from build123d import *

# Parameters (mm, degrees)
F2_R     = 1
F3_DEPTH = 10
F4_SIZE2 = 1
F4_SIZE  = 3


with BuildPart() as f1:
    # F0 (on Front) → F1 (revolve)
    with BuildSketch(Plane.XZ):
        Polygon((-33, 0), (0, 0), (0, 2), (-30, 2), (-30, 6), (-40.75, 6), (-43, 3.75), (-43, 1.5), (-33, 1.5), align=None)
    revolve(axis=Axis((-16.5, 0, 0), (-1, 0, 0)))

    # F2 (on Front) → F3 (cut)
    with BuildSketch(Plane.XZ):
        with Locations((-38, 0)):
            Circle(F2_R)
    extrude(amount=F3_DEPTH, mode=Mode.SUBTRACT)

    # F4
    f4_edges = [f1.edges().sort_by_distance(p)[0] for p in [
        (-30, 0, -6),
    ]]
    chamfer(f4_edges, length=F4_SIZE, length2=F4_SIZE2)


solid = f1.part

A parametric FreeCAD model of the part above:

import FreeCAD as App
import Part
import Sketcher
Q = App.Units.Quantity


def edges_at(feature, points):
    """Names of the edges that pass closest to the given points."""
    edges = feature.Shape.Edges
    near = lambda p: min(range(len(edges)), key=lambda i: edges[i].distToShape(Part.Vertex(*p))[0])
    return sorted({f"Edge{near(p) + 1}" for p in points})


def add_polygon(sketch, points):
    """Adds a closed chain of lines whose ends are joined by coincident constraints."""
    first, n = sketch.GeometryCount, len(points)
    for a, b in zip(points, points[1:] + points[:1]):
        sketch.addGeometry(Part.LineSegment(App.Vector(*a, 0), App.Vector(*b, 0)), False)
    for i in range(n):
        sketch.addConstraint(Sketcher.Constraint("Coincident", first + i, 2, first + (i + 1) % n, 1))

doc = App.newDocument("Part")
params = doc.addObject("Spreadsheet::Sheet", "Params")
for row, (alias, value) in enumerate([
    ("sketch1_width", "33 mm"),
    ("sketch1_width2", "30 mm"),
    ("sketch1_width3", "10 mm"),
    ("sketch1_height", "2 mm"),
    ("sketch1_height2", "4 mm"),
    ("revolution_angle", "360 deg"),
    ("sketch2_diameter", "2 mm"),
    ("pocket1_length", "10 mm"),
    ("chamfer_size", "3 mm"),
    ("chamfer_size2", "1 mm"),
], start=1):
    params.set(f"A{row}", alias)
    params.set(f"B{row}", "=" + value)
    params.setAlias(f"B{row}", alias)

body = doc.addObject("PartDesign::Body", "Body")

sketch1 = body.newObject("Sketcher::SketchObject", "Sketch")
sketch1.AttachmentSupport = (doc.getObject("XZ_Plane"), [""])
sketch1.MapMode = "FlatFace"
add_polygon(sketch1, [(-33, 0), (0, 0), (0, 2), (-30, 2), (-30, 6), (-40.8, 6), (-43, 3.8), (-43, 1.5), (-33, 1.5)])
sketch1.addConstraint(Sketcher.Constraint("Horizontal", 0))
sketch1.addConstraint(Sketcher.Constraint("Vertical", 1))
sketch1.addConstraint(Sketcher.Constraint("Horizontal", 2))
sketch1.addConstraint(Sketcher.Constraint("Vertical", 3))
sketch1.addConstraint(Sketcher.Constraint("Horizontal", 4))
sketch1.addConstraint(Sketcher.Constraint("Vertical", 6))
sketch1.addConstraint(Sketcher.Constraint("Horizontal", 7))
sketch1.addConstraint(Sketcher.Constraint("Vertical", 8))
sketch1.addConstraint(Sketcher.Constraint("Coincident", 0, 2, -1, 1))
sketch1.addConstraint(Sketcher.Constraint("DistanceX", 0, 1, 0, 2, 33.0))
sketch1.addConstraint(Sketcher.Constraint("DistanceX", 2, 2, 2, 1, 30.0))
sketch1.addConstraint(Sketcher.Constraint("DistanceX", 7, 1, 7, 2, 10.0))
sketch1.addConstraint(Sketcher.Constraint("DistanceY", 1, 1, 1, 2, 2.0))
sketch1.addConstraint(Sketcher.Constraint("DistanceY", 3, 1, 3, 2, 4.0))
sketch1.addConstraint(Sketcher.Constraint("Angle", 5, Q("-135 deg")))
sketch1.addConstraint(Sketcher.Constraint("DistanceY", 8, 2, 8, 1, 1.5))
sketch1.addConstraint(Sketcher.Constraint("DistanceX", 4, 2, 4, 1, 10.75))
sketch1.setExpression("Constraints[18]", "Params.sketch1_width")
sketch1.setExpression("Constraints[19]", "Params.sketch1_width2")
sketch1.setExpression("Constraints[20]", "Params.sketch1_width3")
sketch1.setExpression("Constraints[21]", "Params.sketch1_height")
sketch1.setExpression("Constraints[22]", "Params.sketch1_height2")
revolution = body.newObject("PartDesign::Revolution", "Revolution")
revolution.Profile = sketch1
revolution.ReferenceAxis = (sketch1, ["H_Axis"])
revolution.setExpression("Angle", "Params.revolution_angle")

sketch2 = body.newObject("Sketcher::SketchObject", "Sketch001")
sketch2.AttachmentSupport = (doc.getObject("XZ_Plane"), [""])
sketch2.MapMode = "FlatFace"
sketch2.addGeometry(Part.Circle(App.Vector(-38, 0, 0), App.Vector(0, 0, 1), 1), False)
sketch2.addConstraint(Sketcher.Constraint("PointOnObject", 0, 3, -1))
sketch2.addConstraint(Sketcher.Constraint("Diameter", 0, 2.0))
sketch2.addConstraint(Sketcher.Constraint("DistanceX", 0, 3, -1, 1, 38.0))
sketch2.setExpression("Constraints[1]", "Params.sketch2_diameter")
pocket1 = body.newObject("PartDesign::Pocket", "Pocket")
pocket1.Profile = sketch2
pocket1.setExpression("Length", "Params.pocket1_length")
pocket1.Reversed = True
doc.recompute()

chamfer = body.newObject("PartDesign::Chamfer", "Chamfer")
chamfer.Base = (pocket1, edges_at(pocket1, [(-30, 0, -6)]))
chamfer.ChamferType = "Two distances"
chamfer.setExpression("Size", "Params.chamfer_size")
chamfer.setExpression("Size2", "Params.chamfer_size2")

doc.recompute()
